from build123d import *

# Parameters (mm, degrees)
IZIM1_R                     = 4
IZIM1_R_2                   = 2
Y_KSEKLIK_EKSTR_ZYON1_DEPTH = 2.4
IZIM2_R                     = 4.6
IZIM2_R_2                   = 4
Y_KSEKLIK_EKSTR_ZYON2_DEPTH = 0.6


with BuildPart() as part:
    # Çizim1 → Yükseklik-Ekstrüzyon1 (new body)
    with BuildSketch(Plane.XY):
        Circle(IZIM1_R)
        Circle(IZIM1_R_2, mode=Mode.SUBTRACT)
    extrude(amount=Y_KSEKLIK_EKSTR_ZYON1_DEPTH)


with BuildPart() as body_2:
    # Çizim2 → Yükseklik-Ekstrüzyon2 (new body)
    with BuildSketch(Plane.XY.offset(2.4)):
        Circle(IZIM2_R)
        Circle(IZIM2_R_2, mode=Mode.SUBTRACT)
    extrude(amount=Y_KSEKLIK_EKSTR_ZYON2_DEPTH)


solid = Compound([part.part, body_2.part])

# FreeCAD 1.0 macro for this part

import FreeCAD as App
import Part
import Sketcher

V = App.Vector

doc = App.newDocument("Part")
body = doc.addObject("PartDesign::Body", "Body")

sketch1 = doc.addObject("Sketcher::SketchObject", "Sketch")
body.addObject(sketch1)
sketch1.AttachmentSupport = (doc.XY_Plane, [""])
sketch1.MapMode = "FlatFace"
sketch1.addGeometry([
    Part.Circle(V(0, 0, 0), V(0, 0, 1), 4),
    Part.Circle(V(0, 0, 0), V(0, 0, 1), 2),
], False)
sketch1.addConstraint([
    Sketcher.Constraint("Coincident", 0, 3, -1, 1),
    Sketcher.Constraint("Coincident", 1, 3, -1, 1),
    Sketcher.Constraint("Diameter", 0, 8.0),
    Sketcher.Constraint("Diameter", 1, 4.0),
])
pad1 = doc.addObject("PartDesign::Pad", "Pad")
body.addObject(pad1)
pad1.Profile = sketch1
pad1.Length = 2.4
body2 = doc.addObject("PartDesign::Body", "Body001")

sketch2 = doc.addObject("Sketcher::SketchObject", "Sketch001")
body2.addObject(sketch2)
sketch2.AttachmentSupport = (doc.getObject("XY_Plane001"), [""])
sketch2.MapMode = "FlatFace"
sketch2.AttachmentOffset = App.Placement(V(0, 0, 2.4), App.Rotation())
sketch2.addGeometry([
    Part.Circle(V(0, 0, 0), V(0, 0, 1), 4.6),
    Part.Circle(V(0, 0, 0), V(0, 0, 1), 4),
], False)
sketch2.addConstraint([
    Sketcher.Constraint("Coincident", 0, 3, -1, 1),
    Sketcher.Constraint("Coincident", 1, 3, -1, 1),
    Sketcher.Constraint("Diameter", 1, 8.0),
    Sketcher.Constraint("Diameter", 0, 9.2),
])
pad2 = doc.addObject("PartDesign::Pad", "Pad001")
body2.addObject(pad2)
pad2.Profile = sketch2
pad2.Length = 0.6

doc.recompute()
